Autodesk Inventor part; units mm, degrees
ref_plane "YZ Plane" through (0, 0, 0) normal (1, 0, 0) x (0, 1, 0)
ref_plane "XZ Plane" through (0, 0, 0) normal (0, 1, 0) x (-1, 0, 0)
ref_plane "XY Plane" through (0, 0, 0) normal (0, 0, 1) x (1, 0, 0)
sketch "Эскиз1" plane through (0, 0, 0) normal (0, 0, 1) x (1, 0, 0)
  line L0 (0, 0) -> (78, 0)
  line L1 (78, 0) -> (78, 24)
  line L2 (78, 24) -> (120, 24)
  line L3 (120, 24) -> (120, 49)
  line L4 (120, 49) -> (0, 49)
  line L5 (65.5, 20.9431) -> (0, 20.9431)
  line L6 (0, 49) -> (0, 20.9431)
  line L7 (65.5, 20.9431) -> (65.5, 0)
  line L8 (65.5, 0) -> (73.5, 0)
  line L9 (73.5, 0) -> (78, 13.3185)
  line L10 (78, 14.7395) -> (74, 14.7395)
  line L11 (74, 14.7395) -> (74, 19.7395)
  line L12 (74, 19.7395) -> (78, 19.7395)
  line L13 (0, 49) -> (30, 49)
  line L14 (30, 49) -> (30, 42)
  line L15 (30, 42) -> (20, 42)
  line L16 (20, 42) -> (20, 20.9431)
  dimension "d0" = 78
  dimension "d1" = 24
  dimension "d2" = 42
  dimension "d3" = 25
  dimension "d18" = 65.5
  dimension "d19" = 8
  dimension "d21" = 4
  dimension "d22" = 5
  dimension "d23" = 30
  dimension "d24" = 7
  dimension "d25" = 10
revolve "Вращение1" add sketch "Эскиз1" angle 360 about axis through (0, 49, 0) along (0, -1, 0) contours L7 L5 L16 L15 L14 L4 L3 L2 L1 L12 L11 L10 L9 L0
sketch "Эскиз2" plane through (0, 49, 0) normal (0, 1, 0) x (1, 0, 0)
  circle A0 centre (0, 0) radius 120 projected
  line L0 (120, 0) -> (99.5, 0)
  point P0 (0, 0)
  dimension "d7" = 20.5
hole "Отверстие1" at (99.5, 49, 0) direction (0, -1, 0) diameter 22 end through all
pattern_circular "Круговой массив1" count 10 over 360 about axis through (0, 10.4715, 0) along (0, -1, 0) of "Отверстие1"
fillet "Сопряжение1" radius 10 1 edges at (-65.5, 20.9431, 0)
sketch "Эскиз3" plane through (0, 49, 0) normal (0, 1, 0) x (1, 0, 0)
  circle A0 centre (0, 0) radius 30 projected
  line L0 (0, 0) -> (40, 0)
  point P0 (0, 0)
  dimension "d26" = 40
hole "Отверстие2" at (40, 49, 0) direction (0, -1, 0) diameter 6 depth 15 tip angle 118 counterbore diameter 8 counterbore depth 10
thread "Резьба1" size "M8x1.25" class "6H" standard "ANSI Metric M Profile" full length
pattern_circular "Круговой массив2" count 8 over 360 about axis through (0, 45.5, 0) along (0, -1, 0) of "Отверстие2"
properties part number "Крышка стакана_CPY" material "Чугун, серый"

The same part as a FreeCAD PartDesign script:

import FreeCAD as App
import Part
import Sketcher
from FreeCAD import Vector
Q = App.Units.Quantity


def edges_at(feature, points):
    """Names of the edges that pass closest to the given points."""
    edges = feature.Shape.Edges
    near = lambda p: min(range(len(edges)), key=lambda i: edges[i].distToShape(Part.Vertex(*p))[0])
    return sorted({f"Edge{near(p) + 1}" for p in points})


def add_polygon(sketch, points):
    """Adds a closed chain of lines whose ends are joined by coincident constraints."""
    first, n = sketch.GeometryCount, len(points)
    for a, b in zip(points, points[1:] + points[:1]):
        sketch.addGeometry(Part.LineSegment(App.Vector(*a, 0), App.Vector(*b, 0)), False)
    for i in range(n):
        sketch.addConstraint(Sketcher.Constraint("Coincident", first + i, 2, first + (i + 1) % n, 1))

doc = App.newDocument("Part")
body = doc.addObject("PartDesign::Body", "Body")

sketch1 = body.newObject("Sketcher::SketchObject", "Sketch")
sketch1.AttachmentSupport = (doc.getObject("XY_Plane"), [""])
sketch1.MapMode = "FlatFace"
add_polygon(sketch1, [(65.5, 20.9431), (65.5, 0), (73.5, 0), (78, 13.3185), (78, 14.7395), (74, 14.7395), (74, 19.7395), (78, 19.7395), (78, 24), (120, 24), (120, 49), (30, 49), (30, 42), (20, 42), (20, 20.9431)])
sketch1.addConstraint([
    Sketcher.Constraint("Vertical", 0),
    Sketcher.Constraint("Horizontal", 1),
    Sketcher.Constraint("Vertical", 3),
    Sketcher.Constraint("Horizontal", 4),
    Sketcher.Constraint("Vertical", 5),
    Sketcher.Constraint("Horizontal", 6),
    Sketcher.Constraint("Vertical", 7),
    Sketcher.Constraint("Horizontal", 8),
    Sketcher.Constraint("Vertical", 9),
    Sketcher.Constraint("Horizontal", 10),
    Sketcher.Constraint("Vertical", 11),
    Sketcher.Constraint("Horizontal", 12),
    Sketcher.Constraint("Vertical", 13),
    Sketcher.Constraint("Horizontal", 14),
    Sketcher.Constraint("PointOnObject", 0, 2, -1),
    Sketcher.Constraint("Vertical", 3, 2, 6, 2),
    Sketcher.Constraint("DistanceX", 1, 1, 1, 2, 8.0),
    Sketcher.Constraint("DistanceX", 4, 2, 4, 1, 4.0),
    Sketcher.Constraint("DistanceX", 8, 1, 8, 2, 42.0),
    Sketcher.Constraint("DistanceX", 12, 2, 12, 1, 10.0),
    Sketcher.Constraint("DistanceY", 5, 1, 5, 2, 5.0),
    Sketcher.Constraint("DistanceY", 9, 1, 9, 2, 25.0),
    Sketcher.Constraint("DistanceY", 11, 2, 11, 1, 7.0),
    Sketcher.Constraint("DistanceX", -1, 1, 2, 2, 78.0),
    Sketcher.Constraint("DistanceY", -1, 1, 7, 2, 24.0),
    Sketcher.Constraint("DistanceX", -1, 1, 10, 2, 30.0),
    Sketcher.Constraint("DistanceX", -1, 1, 0, 2, 65.5),
    Sketcher.Constraint("Angle", 2, Q("71.3311 deg")),
    Sketcher.Constraint("DistanceY", 0, 2, 0, 1, 20.943),
    Sketcher.Constraint("DistanceY", 3, 1, 3, 2, 1.421),
])
revolution = body.newObject("PartDesign::Revolution", "Revolution")
revolution.Profile = sketch1
revolution.ReferenceAxis = (sketch1, ["V_Axis"])
revolution.Angle = 360

sketch2 = body.newObject("Sketcher::SketchObject", "Sketch001")
sketch2.AttachmentSupport = (doc.getObject("XZ_Plane"), [""])
sketch2.MapMode = "FlatFace"
sketch2.AttachmentOffset = App.Placement(Vector(0, 0, -49), App.Rotation())
sketch2.addGeometry(Part.Circle(Vector(99.5, 0, 0), Vector(0, 0, 1), 11), False)
sketch2.addConstraint([
    Sketcher.Constraint("PointOnObject", 0, 3, -1),
    Sketcher.Constraint("Diameter", 0, 22.0),
    Sketcher.Constraint("DistanceX", -1, 1, 0, 3, 99.5),
])
doc.recompute()
hole = body.newObject("PartDesign::Hole", "Hole")
hole.Profile = sketch2
hole.ThreadType = "None"
hole.Diameter = 22
hole.DepthType = "ThroughAll"
hole.Reversed = True
doc.recompute()

polarpattern = body.newObject("PartDesign::PolarPattern", "PolarPattern")
polarpattern.Originals = [hole]
polarpattern.Axis = (doc.getObject("Y_Axis"), [""])
polarpattern.Angle = 360
polarpattern.Occurrences = 10
body.Tip = polarpattern
doc.recompute()

fillet = body.newObject("PartDesign::Fillet", "Fillet")
fillet.Base = (polarpattern, edges_at(polarpattern, [(-65.5, 20.943, 0)]))
fillet.Radius = 10

sketch3 = body.newObject("Sketcher::SketchObject", "Sketch002")
sketch3.AttachmentSupport = (doc.getObject("XZ_Plane"), [""])
sketch3.MapMode = "FlatFace"
sketch3.AttachmentOffset = App.Placement(Vector(0, 0, -49), App.Rotation())
sketch3.addGeometry(Part.Circle(Vector(40, 0, 0), Vector(0, 0, 1), 3), False)
sketch3.addConstraint([
    Sketcher.Constraint("PointOnObject", 0, 3, -1),
    Sketcher.Constraint("Diameter", 0, 6.0),
    Sketcher.Constraint("DistanceX", -1, 1, 0, 3, 40.0),
])
doc.recompute()
hole2 = body.newObject("PartDesign::Hole", "Hole001")
hole2.Profile = sketch3
hole2.ThreadType = "None"
hole2.Diameter = 6
hole2.DepthType = "Dimension"
hole2.Depth = 15
hole2.DrillPoint = "Angled"
hole2.DrillPointAngle = 118
hole2.HoleCutType = "Counterbore"
hole2.HoleCutDiameter = 8
hole2.HoleCutDepth = 10
hole2.Reversed = True
doc.recompute()

polarpattern2 = body.newObject("PartDesign::PolarPattern", "PolarPattern001")
polarpattern2.Originals = [hole2]
polarpattern2.Axis = (doc.getObject("Y_Axis"), [""])
polarpattern2.Angle = 360
polarpattern2.Occurrences = 8
body.Tip = polarpattern2

doc.recompute()
